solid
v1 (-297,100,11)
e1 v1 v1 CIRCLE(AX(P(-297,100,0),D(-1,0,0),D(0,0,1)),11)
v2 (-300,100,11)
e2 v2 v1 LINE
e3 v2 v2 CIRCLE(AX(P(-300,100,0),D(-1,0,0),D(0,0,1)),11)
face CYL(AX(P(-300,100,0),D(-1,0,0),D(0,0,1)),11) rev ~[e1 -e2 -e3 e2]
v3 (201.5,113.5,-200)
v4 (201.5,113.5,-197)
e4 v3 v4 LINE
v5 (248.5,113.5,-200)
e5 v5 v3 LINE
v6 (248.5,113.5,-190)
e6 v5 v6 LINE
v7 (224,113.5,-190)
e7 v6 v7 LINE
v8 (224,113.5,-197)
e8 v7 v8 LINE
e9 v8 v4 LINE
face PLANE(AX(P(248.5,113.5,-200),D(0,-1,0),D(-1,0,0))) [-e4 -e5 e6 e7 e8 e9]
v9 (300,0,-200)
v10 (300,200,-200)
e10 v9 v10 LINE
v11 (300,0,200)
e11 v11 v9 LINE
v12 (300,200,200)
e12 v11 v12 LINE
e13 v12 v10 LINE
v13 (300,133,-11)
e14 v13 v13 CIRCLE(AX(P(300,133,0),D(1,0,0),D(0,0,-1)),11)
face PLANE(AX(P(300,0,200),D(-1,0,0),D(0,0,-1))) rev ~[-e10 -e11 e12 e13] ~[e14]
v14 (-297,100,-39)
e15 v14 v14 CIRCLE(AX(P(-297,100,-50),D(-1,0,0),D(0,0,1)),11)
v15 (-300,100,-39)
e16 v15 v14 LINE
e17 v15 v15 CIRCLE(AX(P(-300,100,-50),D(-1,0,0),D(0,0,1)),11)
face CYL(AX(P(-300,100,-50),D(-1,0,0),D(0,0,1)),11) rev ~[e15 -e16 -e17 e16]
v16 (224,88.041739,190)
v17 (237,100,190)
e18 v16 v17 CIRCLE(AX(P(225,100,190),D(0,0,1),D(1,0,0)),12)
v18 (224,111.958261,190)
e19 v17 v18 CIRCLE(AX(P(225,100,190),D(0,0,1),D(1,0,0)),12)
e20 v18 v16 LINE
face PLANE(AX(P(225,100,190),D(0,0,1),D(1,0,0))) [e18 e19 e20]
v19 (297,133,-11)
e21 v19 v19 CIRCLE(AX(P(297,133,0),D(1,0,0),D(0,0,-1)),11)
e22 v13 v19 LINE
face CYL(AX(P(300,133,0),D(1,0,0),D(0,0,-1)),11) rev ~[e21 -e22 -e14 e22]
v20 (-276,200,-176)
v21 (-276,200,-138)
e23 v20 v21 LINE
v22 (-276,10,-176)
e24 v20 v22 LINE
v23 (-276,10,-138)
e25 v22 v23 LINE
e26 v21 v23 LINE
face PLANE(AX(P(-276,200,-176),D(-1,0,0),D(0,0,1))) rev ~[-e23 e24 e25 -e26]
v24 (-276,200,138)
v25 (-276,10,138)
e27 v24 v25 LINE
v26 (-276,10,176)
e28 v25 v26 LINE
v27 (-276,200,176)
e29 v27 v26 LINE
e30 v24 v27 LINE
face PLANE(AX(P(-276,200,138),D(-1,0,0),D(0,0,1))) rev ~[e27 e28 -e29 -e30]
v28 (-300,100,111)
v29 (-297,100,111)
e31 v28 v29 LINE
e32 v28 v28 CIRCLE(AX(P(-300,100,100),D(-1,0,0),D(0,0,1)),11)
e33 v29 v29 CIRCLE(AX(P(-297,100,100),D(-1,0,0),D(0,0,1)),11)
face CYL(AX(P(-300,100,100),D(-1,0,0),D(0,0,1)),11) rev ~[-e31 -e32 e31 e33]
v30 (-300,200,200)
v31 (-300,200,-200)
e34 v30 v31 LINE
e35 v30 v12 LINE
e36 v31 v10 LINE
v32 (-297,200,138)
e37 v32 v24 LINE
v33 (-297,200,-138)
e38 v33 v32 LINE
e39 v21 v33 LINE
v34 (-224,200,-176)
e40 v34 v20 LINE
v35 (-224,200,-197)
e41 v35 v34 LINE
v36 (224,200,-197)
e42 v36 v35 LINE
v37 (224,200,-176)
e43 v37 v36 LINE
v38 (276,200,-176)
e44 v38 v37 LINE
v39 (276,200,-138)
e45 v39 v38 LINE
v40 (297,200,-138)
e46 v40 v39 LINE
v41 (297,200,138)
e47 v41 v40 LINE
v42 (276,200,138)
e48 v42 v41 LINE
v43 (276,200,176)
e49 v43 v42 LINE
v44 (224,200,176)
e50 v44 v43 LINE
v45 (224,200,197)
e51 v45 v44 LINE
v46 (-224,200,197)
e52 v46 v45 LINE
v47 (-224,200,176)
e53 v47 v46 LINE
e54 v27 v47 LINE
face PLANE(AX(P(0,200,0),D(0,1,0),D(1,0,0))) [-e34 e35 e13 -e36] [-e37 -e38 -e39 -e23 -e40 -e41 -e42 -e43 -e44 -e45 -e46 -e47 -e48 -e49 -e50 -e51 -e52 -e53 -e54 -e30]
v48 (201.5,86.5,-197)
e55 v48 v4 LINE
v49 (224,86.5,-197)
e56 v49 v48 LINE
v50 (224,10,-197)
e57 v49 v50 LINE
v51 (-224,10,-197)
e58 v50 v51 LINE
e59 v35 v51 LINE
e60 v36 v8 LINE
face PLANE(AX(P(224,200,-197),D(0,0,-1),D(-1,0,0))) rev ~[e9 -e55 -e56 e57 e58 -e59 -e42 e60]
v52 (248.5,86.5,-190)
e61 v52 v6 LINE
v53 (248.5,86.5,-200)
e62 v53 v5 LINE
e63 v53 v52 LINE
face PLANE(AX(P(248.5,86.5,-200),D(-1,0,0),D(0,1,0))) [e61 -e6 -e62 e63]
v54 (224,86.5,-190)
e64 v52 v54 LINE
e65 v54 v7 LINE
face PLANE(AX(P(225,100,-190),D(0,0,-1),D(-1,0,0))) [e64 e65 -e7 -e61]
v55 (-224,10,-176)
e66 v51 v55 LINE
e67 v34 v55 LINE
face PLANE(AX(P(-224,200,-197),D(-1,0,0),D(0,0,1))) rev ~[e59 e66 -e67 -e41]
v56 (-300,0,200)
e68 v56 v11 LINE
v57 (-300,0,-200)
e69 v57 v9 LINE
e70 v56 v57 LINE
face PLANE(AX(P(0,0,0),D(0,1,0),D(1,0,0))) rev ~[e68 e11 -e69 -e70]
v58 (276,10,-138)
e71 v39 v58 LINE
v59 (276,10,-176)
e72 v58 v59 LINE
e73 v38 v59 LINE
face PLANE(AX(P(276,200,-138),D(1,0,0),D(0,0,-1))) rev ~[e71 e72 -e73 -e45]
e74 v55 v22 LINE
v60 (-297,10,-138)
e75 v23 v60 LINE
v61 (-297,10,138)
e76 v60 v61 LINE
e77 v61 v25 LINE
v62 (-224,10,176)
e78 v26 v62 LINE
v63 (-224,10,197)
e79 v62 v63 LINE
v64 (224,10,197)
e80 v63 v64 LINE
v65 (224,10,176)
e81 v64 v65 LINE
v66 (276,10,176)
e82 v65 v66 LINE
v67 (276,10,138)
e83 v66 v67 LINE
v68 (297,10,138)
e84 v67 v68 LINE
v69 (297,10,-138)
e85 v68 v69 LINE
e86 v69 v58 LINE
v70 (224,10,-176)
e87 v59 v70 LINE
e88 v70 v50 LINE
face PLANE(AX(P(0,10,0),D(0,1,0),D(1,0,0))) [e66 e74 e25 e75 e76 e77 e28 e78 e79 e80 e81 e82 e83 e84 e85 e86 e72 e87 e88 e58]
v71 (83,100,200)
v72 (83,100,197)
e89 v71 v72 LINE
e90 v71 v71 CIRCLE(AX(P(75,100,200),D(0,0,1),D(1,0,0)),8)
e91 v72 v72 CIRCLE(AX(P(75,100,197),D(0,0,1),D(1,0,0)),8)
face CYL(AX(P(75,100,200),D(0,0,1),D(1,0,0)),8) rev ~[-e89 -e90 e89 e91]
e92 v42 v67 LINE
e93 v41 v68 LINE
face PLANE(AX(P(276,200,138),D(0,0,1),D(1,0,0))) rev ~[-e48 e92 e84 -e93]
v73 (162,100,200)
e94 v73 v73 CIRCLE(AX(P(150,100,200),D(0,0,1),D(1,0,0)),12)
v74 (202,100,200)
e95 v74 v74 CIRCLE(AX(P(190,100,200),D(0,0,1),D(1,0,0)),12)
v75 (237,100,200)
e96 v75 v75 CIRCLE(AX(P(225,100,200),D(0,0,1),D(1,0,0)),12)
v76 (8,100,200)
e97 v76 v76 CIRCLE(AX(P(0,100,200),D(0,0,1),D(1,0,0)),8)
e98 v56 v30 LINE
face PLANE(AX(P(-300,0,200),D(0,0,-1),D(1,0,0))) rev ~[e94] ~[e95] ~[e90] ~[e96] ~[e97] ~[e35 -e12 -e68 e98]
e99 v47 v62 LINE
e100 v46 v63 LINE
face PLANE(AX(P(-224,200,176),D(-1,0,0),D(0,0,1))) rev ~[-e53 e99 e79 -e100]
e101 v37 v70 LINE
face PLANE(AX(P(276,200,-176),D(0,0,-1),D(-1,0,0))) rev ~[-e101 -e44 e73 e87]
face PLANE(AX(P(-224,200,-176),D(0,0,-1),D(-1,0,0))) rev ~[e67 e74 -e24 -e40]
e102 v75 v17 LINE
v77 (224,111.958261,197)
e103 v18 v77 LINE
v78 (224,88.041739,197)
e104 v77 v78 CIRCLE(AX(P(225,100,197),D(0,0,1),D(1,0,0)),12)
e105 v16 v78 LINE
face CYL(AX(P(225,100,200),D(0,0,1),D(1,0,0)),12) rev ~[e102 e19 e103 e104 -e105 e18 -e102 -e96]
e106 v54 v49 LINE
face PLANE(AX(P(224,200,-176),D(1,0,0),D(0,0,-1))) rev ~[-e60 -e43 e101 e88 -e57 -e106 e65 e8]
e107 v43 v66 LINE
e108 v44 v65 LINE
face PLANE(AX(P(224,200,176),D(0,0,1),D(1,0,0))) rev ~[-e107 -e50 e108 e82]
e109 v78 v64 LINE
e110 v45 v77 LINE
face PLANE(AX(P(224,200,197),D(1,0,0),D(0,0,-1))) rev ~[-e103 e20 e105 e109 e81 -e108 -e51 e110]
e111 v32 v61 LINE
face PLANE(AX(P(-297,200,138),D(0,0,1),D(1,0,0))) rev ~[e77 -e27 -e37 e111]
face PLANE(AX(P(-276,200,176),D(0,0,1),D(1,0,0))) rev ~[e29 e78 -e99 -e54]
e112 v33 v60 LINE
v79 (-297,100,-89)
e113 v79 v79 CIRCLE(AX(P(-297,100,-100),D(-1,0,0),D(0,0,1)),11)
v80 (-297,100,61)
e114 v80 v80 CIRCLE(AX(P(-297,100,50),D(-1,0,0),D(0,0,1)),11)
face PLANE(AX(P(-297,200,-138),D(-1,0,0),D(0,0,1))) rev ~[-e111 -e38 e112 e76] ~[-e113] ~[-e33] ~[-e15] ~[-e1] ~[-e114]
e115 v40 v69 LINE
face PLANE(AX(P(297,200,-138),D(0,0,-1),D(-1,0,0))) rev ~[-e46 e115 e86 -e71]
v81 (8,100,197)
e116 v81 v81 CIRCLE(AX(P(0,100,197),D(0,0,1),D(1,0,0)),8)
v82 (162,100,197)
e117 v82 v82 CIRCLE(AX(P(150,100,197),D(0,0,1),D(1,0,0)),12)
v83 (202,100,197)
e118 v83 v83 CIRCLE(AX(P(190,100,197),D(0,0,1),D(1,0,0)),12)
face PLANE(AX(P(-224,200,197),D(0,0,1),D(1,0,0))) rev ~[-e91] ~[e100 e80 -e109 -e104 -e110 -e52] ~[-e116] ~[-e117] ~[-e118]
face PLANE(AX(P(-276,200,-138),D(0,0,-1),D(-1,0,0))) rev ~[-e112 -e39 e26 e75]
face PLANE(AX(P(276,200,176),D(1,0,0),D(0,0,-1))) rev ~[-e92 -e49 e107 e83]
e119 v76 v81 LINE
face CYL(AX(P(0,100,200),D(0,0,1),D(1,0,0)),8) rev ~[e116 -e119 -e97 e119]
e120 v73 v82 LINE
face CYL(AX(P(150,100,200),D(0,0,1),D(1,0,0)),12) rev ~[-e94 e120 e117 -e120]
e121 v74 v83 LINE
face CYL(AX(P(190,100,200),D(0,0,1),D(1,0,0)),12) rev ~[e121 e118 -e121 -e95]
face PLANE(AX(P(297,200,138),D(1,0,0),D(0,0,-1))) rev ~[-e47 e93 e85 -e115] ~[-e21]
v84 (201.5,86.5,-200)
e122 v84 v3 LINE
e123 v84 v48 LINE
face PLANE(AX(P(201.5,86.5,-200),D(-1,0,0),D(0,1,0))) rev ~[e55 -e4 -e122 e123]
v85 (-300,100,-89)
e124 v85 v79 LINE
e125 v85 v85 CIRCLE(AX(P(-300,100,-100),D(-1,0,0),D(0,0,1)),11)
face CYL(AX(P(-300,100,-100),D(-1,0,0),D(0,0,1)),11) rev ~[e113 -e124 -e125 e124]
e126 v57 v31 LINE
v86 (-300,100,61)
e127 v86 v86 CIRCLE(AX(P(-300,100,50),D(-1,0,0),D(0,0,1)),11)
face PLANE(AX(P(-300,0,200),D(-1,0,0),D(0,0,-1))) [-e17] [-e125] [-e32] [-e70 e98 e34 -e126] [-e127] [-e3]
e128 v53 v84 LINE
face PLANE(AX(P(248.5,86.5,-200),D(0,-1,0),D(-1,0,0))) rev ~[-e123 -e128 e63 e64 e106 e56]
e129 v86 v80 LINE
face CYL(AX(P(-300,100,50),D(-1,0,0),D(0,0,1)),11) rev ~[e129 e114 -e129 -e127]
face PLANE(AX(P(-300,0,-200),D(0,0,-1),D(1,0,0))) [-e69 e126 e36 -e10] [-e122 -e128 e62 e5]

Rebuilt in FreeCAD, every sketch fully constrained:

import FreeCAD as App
import Part
import Sketcher

doc = App.newDocument("Part")
body = doc.addObject("PartDesign::Body", "Body")

sketch1 = doc.addObject("Sketcher::SketchObject", "Sketch")
body.addObject(sketch1)
sketch1.AttachmentSupport = (doc.XZ_Plane, [""])
sketch1.MapMode = "FlatFace"
sketch1.addGeometry(Part.LineSegment(App.Vector(-300, -200, 0), App.Vector(-300, 200, 0)), False)
sketch1.addGeometry(Part.LineSegment(App.Vector(-300, 200, 0), App.Vector(300, 200, 0)), False)
sketch1.addGeometry(Part.LineSegment(App.Vector(300, 200, 0), App.Vector(300, -200, 0)), False)
sketch1.addGeometry(Part.LineSegment(App.Vector(300, -200, 0), App.Vector(-300, -200, 0)), False)
sketch1.addConstraint(Sketcher.Constraint("Coincident", 0, 2, 1, 1))
sketch1.addConstraint(Sketcher.Constraint("Coincident", 1, 2, 2, 1))
sketch1.addConstraint(Sketcher.Constraint("Coincident", 2, 2, 3, 1))
sketch1.addConstraint(Sketcher.Constraint("Coincident", 3, 2, 0, 1))
sketch1.addConstraint(Sketcher.Constraint("Vertical", 0))
sketch1.addConstraint(Sketcher.Constraint("Horizontal", 1))
sketch1.addConstraint(Sketcher.Constraint("Vertical", 2))
sketch1.addConstraint(Sketcher.Constraint("Horizontal", 3))
sketch1.addConstraint(Sketcher.Constraint("Symmetric", 0, 2, 2, 2, -1, 1))
sketch1.addConstraint(Sketcher.Constraint("DistanceX", 1, 1, 1, 2, 600.0))
sketch1.addConstraint(Sketcher.Constraint("DistanceY", 0, 1, 0, 2, 400.0))
pad1 = doc.addObject("PartDesign::Pad", "Pad")
body.addObject(pad1)
pad1.Profile = sketch1
pad1.Length = 200
pad1.Reversed = True

sketch2 = doc.addObject("Sketcher::SketchObject", "Sketch001")
body.addObject(sketch2)
sketch2.AttachmentSupport = (doc.XZ_Plane, [""])
sketch2.MapMode = "FlatFace"
sketch2.AttachmentOffset = App.Placement(App.Vector(0, 0, -200), App.Rotation())
sketch2.addGeometry(Part.LineSegment(App.Vector(-224, 197, 0), App.Vector(224, 197, 0)), False)
sketch2.addGeometry(Part.LineSegment(App.Vector(224, 197, 0), App.Vector(224, 176, 0)), False)
sketch2.addGeometry(Part.LineSegment(App.Vector(224, 176, 0), App.Vector(276, 176, 0)), False)
sketch2.addGeometry(Part.LineSegment(App.Vector(276, 176, 0), App.Vector(276, 138, 0)), False)
sketch2.addGeometry(Part.LineSegment(App.Vector(276, 138, 0), App.Vector(297, 138, 0)), False)
sketch2.addGeometry(Part.LineSegment(App.Vector(297, 138, 0), App.Vector(297, -138, 0)), False)
sketch2.addGeometry(Part.LineSegment(App.Vector(297, -138, 0), App.Vector(276, -138, 0)), False)
sketch2.addGeometry(Part.LineSegment(App.Vector(276, -138, 0), App.Vector(276, -176, 0)), False)
sketch2.addGeometry(Part.LineSegment(App.Vector(276, -176, 0), App.Vector(224, -176, 0)), False)
sketch2.addGeometry(Part.LineSegment(App.Vector(224, -176, 0), App.Vector(224, -197, 0)), False)
sketch2.addGeometry(Part.LineSegment(App.Vector(224, -197, 0), App.Vector(-224, -197, 0)), False)
sketch2.addGeometry(Part.LineSegment(App.Vector(-224, -197, 0), App.Vector(-224, -176, 0)), False)
sketch2.addGeometry(Part.LineSegment(App.Vector(-224, -176, 0), App.Vector(-276, -176, 0)), False)
sketch2.addGeometry(Part.LineSegment(App.Vector(-276, -176, 0), App.Vector(-276, -138, 0)), False)
sketch2.addGeometry(Part.LineSegment(App.Vector(-276, -138, 0), App.Vector(-297, -138, 0)), False)
sketch2.addGeometry(Part.LineSegment(App.Vector(-297, -138, 0), App.Vector(-297, 138, 0)), False)
sketch2.addGeometry(Part.LineSegment(App.Vector(-297, 138, 0), App.Vector(-276, 138, 0)), False)
sketch2.addGeometry(Part.LineSegment(App.Vector(-276, 138, 0), App.Vector(-276, 176, 0)), False)
sketch2.addGeometry(Part.LineSegment(App.Vector(-276, 176, 0), App.Vector(-224, 176, 0)), False)
sketch2.addGeometry(Part.LineSegment(App.Vector(-224, 176, 0), App.Vector(-224, 197, 0)), False)
sketch2.addConstraint(Sketcher.Constraint("Coincident", 0, 2, 1, 1))
sketch2.addConstraint(Sketcher.Constraint("Coincident", 1, 2, 2, 1))
sketch2.addConstraint(Sketcher.Constraint("Coincident", 2, 2, 3, 1))
sketch2.addConstraint(Sketcher.Constraint("Coincident", 3, 2, 4, 1))
sketch2.addConstraint(Sketcher.Constraint("Coincident", 4, 2, 5, 1))
sketch2.addConstraint(Sketcher.Constraint("Coincident", 5, 2, 6, 1))
sketch2.addConstraint(Sketcher.Constraint("Coincident", 6, 2, 7, 1))
sketch2.addConstraint(Sketcher.Constraint("Coincident", 7, 2, 8, 1))
sketch2.addConstraint(Sketcher.Constraint("Coincident", 8, 2, 9, 1))
sketch2.addConstraint(Sketcher.Constraint("Coincident", 9, 2, 10, 1))
sketch2.addConstraint(Sketcher.Constraint("Coincident", 10, 2, 11, 1))
sketch2.addConstraint(Sketcher.Constraint("Coincident", 11, 2, 12, 1))
sketch2.addConstraint(Sketcher.Constraint("Coincident", 12, 2, 13, 1))
sketch2.addConstraint(Sketcher.Constraint("Coincident", 13, 2, 14, 1))
sketch2.addConstraint(Sketcher.Constraint("Coincident", 14, 2, 15, 1))
sketch2.addConstraint(Sketcher.Constraint("Coincident", 15, 2, 16, 1))
sketch2.addConstraint(Sketcher.Constraint("Coincident", 16, 2, 17, 1))
sketch2.addConstraint(Sketcher.Constraint("Coincident", 17, 2, 18, 1))
sketch2.addConstraint(Sketcher.Constraint("Coincident", 18, 2, 19, 1))
sketch2.addConstraint(Sketcher.Constraint("Coincident", 19, 2, 0, 1))
sketch2.addConstraint(Sketcher.Constraint("Horizontal", 0))
sketch2.addConstraint(Sketcher.Constraint("Vertical", 1))
sketch2.addConstraint(Sketcher.Constraint("Horizontal", 2))
sketch2.addConstraint(Sketcher.Constraint("Vertical", 3))
sketch2.addConstraint(Sketcher.Constraint("Horizontal", 4))
sketch2.addConstraint(Sketcher.Constraint("Vertical", 5))
sketch2.addConstraint(Sketcher.Constraint("Horizontal", 6))
sketch2.addConstraint(Sketcher.Constraint("Vertical", 7))
sketch2.addConstraint(Sketcher.Constraint("Horizontal", 8))
sketch2.addConstraint(Sketcher.Constraint("Vertical", 9))
sketch2.addConstraint(Sketcher.Constraint("Horizontal", 10))
sketch2.addConstraint(Sketcher.Constraint("Vertical", 11))
sketch2.addConstraint(Sketcher.Constraint("Horizontal", 12))
sketch2.addConstraint(Sketcher.Constraint("Vertical", 13))
sketch2.addConstraint(Sketcher.Constraint("Horizontal", 14))
sketch2.addConstraint(Sketcher.Constraint("Vertical", 15))
sketch2.addConstraint(Sketcher.Constraint("Horizontal", 16))
sketch2.addConstraint(Sketcher.Constraint("Vertical", 17))
sketch2.addConstraint(Sketcher.Constraint("Horizontal", 18))
sketch2.addConstraint(Sketcher.Constraint("Vertical", 19))
sketch2.addConstraint(Sketcher.Constraint("Symmetric", 0, 2, 10, 2, -1, 1))
sketch2.addConstraint(Sketcher.Constraint("Symmetric", 2, 2, 12, 2, -1, 1))
sketch2.addConstraint(Sketcher.Constraint("Symmetric", 4, 2, 14, 2, -1, 1))
sketch2.addConstraint(Sketcher.Constraint("Symmetric", 6, 2, 16, 2, -1, 1))
sketch2.addConstraint(Sketcher.Constraint("Symmetric", 8, 2, 18, 2, -1, 1))
sketch2.addConstraint(Sketcher.Constraint("Symmetric", 8, 2, 11, 2, -2))
sketch2.addConstraint(Sketcher.Constraint("Symmetric", 6, 2, 13, 2, -2))
sketch2.addConstraint(Sketcher.Constraint("Equal", 16, 1))
sketch2.addConstraint(Sketcher.Constraint("DistanceX", 0, 1, 0, 2, 448.0))
sketch2.addConstraint(Sketcher.Constraint("DistanceX", 2, 1, 2, 2, 52.0))
sketch2.addConstraint(Sketcher.Constraint("DistanceX", 4, 1, 4, 2, 21.0))
sketch2.addConstraint(Sketcher.Constraint("DistanceY", 3, 2, 3, 1, 38.0))
sketch2.addConstraint(Sketcher.Constraint("DistanceY", 5, 2, 5, 1, 276.0))
pocket1 = doc.addObject("PartDesign::Pocket", "Pocket")
body.addObject(pocket1)
pocket1.Profile = sketch2
pocket1.Length = 190
pocket1.Reversed = True

sketch3 = doc.addObject("Sketcher::SketchObject", "Sketch002")
body.addObject(sketch3)
sketch3.AttachmentSupport = (doc.YZ_Plane, [""])
sketch3.MapMode = "FlatFace"
sketch3.AttachmentOffset = App.Placement(App.Vector(0, 0, -300), App.Rotation())
sketch3.addGeometry(Part.Circle(App.Vector(100, -100, 0), App.Vector(0, 0, 1), 11), False)
sketch3.addGeometry(Part.Circle(App.Vector(100, -50, 0), App.Vector(0, 0, 1), 11), False)
sketch3.addGeometry(Part.Circle(App.Vector(100, 50, 0), App.Vector(0, 0, 1), 11), False)
sketch3.addGeometry(Part.Circle(App.Vector(100, 100, 0), App.Vector(0, 0, 1), 11), False)
sketch3.addGeometry(Part.Circle(App.Vector(100, 0, 0), App.Vector(0, 0, 1), 11), False)
sketch3.addConstraint(Sketcher.Constraint("Equal", 0, 1))
sketch3.addConstraint(Sketcher.Constraint("Equal", 1, 2))
sketch3.addConstraint(Sketcher.Constraint("Equal", 2, 3))
sketch3.addConstraint(Sketcher.Constraint("Equal", 3, 4))
sketch3.addConstraint(Sketcher.Constraint("Symmetric", 1, 3, 2, 3, -1))
sketch3.addConstraint(Sketcher.Constraint("Symmetric", 0, 3, 3, 3, -1))
sketch3.addConstraint(Sketcher.Constraint("PointOnObject", 4, 3, -1))
sketch3.addConstraint(Sketcher.Constraint("Vertical", 0, 3, 1, 3))
sketch3.addConstraint(Sketcher.Constraint("Vertical", 3, 3, 4, 3))
sketch3.addConstraint(Sketcher.Constraint("Diameter", 0, 22.0))
sketch3.addConstraint(Sketcher.Constraint("DistanceX", -1, 1, 0, 3, 100.0))
sketch3.addConstraint(Sketcher.Constraint("DistanceY", 0, 3, -1, 1, 100.0))
sketch3.addConstraint(Sketcher.Constraint("DistanceY", 1, 3, -1, 1, 50.0))
pocket2 = doc.addObject("PartDesign::Pocket", "Pocket001")
body.addObject(pocket2)
pocket2.Profile = sketch3
pocket2.Length = 10
pocket2.Reversed = True

sketch4 = doc.addObject("Sketcher::SketchObject", "Sketch003")
body.addObject(sketch4)
sketch4.AttachmentSupport = (doc.XY_Plane, [""])
sketch4.MapMode = "FlatFace"
sketch4.AttachmentOffset = App.Placement(App.Vector(0, 0, 200), App.Rotation())
sketch4.addGeometry(Part.Circle(App.Vector(150, 100, 0), App.Vector(0, 0, 1), 12), False)
sketch4.addGeometry(Part.Circle(App.Vector(75, 100, 0), App.Vector(0, 0, 1), 8), False)
sketch4.addGeometry(Part.Circle(App.Vector(225, 100, 0), App.Vector(0, 0, 1), 12), False)
sketch4.addGeometry(Part.Circle(App.Vector(0, 100, 0), App.Vector(0, 0, 1), 8), False)
sketch4.addGeometry(Part.Circle(App.Vector(190, 100, 0), App.Vector(0, 0, 1), 12), False)
sketch4.addConstraint(Sketcher.Constraint("Equal", 0, 2))
sketch4.addConstraint(Sketcher.Constraint("Equal", 1, 3))
sketch4.addConstraint(Sketcher.Constraint("Equal", 2, 4))
sketch4.addConstraint(Sketcher.Constraint("PointOnObject", 3, 3, -2))
sketch4.addConstraint(Sketcher.Constraint("Horizontal", 0, 3, 1, 3))
sketch4.addConstraint(Sketcher.Constraint("Horizontal", 1, 3, 2, 3))
sketch4.addConstraint(Sketcher.Constraint("Horizontal", 2, 3, 3, 3))
sketch4.addConstraint(Sketcher.Constraint("Horizontal", 3, 3, 4, 3))
sketch4.addConstraint(Sketcher.Constraint("Diameter", 0, 24.0))
sketch4.addConstraint(Sketcher.Constraint("Diameter", 1, 16.0))
sketch4.addConstraint(Sketcher.Constraint("DistanceX", -1, 1, 0, 3, 150.0))
sketch4.addConstraint(Sketcher.Constraint("DistanceY", -1, 1, 0, 3, 100.0))
sketch4.addConstraint(Sketcher.Constraint("DistanceX", -1, 1, 1, 3, 75.0))
sketch4.addConstraint(Sketcher.Constraint("DistanceX", -1, 1, 2, 3, 225.0))
sketch4.addConstraint(Sketcher.Constraint("DistanceX", -1, 1, 4, 3, 190.0))
pocket3 = doc.addObject("PartDesign::Pocket", "Pocket002")
body.addObject(pocket3)
pocket3.Profile = sketch4
pocket3.Length = 10

sketch5 = doc.addObject("Sketcher::SketchObject", "Sketch004")
body.addObject(sketch5)
sketch5.AttachmentSupport = (doc.XY_Plane, [""])
sketch5.MapMode = "FlatFace"
sketch5.AttachmentOffset = App.Placement(App.Vector(0, 0, -200), App.Rotation())
sketch5.addGeometry(Part.LineSegment(App.Vector(248, 114, 0), App.Vector(248, 86, 0)), False)
sketch5.addGeometry(Part.LineSegment(App.Vector(248, 86, 0), App.Vector(202, 86, 0)), False)
sketch5.addGeometry(Part.LineSegment(App.Vector(202, 86, 0), App.Vector(202, 114, 0)), False)
sketch5.addGeometry(Part.LineSegment(App.Vector(202, 114, 0), App.Vector(248, 114, 0)), False)
sketch5.addConstraint(Sketcher.Constraint("Coincident", 0, 2, 1, 1))
sketch5.addConstraint(Sketcher.Constraint("Coincident", 1, 2, 2, 1))
sketch5.addConstraint(Sketcher.Constraint("Coincident", 2, 2, 3, 1))
sketch5.addConstraint(Sketcher.Constraint("Coincident", 3, 2, 0, 1))
sketch5.addConstraint(Sketcher.Constraint("Vertical", 0))
sketch5.addConstraint(Sketcher.Constraint("Horizontal", 1))
sketch5.addConstraint(Sketcher.Constraint("Vertical", 2))
sketch5.addConstraint(Sketcher.Constraint("Horizontal", 3))
sketch5.addConstraint(Sketcher.Constraint("DistanceX", 1, 2, 1, 1, 47.0))
sketch5.addConstraint(Sketcher.Constraint("DistanceY", 0, 2, 0, 1, 27.0))
sketch5.addConstraint(Sketcher.Constraint("DistanceX", -1, 1, 0, 2, 248.5))
sketch5.addConstraint(Sketcher.Constraint("DistanceY", -1, 1, 0, 2, 86.5))
pocket4 = doc.addObject("PartDesign::Pocket", "Pocket003")
body.addObject(pocket4)
pocket4.Profile = sketch5
pocket4.Length = 10
pocket4.Reversed = True

sketch6 = doc.addObject("Sketcher::SketchObject", "Sketch005")
body.addObject(sketch6)
sketch6.AttachmentSupport = (doc.YZ_Plane, [""])
sketch6.MapMode = "FlatFace"
sketch6.AttachmentOffset = App.Placement(App.Vector(0, 0, 300), App.Rotation())
sketch6.addGeometry(Part.Circle(App.Vector(133, 0, 0), App.Vector(0, 0, 1), 11), False)
sketch6.addConstraint(Sketcher.Constraint("PointOnObject", 0, 3, -1))
sketch6.addConstraint(Sketcher.Constraint("Diameter", 0, 22.0))
sketch6.addConstraint(Sketcher.Constraint("DistanceX", -1, 1, 0, 3, 133.0))
pocket5 = doc.addObject("PartDesign::Pocket", "Pocket004")
body.addObject(pocket5)
pocket5.Profile = sketch6
pocket5.Length = 10

doc.recompute()
